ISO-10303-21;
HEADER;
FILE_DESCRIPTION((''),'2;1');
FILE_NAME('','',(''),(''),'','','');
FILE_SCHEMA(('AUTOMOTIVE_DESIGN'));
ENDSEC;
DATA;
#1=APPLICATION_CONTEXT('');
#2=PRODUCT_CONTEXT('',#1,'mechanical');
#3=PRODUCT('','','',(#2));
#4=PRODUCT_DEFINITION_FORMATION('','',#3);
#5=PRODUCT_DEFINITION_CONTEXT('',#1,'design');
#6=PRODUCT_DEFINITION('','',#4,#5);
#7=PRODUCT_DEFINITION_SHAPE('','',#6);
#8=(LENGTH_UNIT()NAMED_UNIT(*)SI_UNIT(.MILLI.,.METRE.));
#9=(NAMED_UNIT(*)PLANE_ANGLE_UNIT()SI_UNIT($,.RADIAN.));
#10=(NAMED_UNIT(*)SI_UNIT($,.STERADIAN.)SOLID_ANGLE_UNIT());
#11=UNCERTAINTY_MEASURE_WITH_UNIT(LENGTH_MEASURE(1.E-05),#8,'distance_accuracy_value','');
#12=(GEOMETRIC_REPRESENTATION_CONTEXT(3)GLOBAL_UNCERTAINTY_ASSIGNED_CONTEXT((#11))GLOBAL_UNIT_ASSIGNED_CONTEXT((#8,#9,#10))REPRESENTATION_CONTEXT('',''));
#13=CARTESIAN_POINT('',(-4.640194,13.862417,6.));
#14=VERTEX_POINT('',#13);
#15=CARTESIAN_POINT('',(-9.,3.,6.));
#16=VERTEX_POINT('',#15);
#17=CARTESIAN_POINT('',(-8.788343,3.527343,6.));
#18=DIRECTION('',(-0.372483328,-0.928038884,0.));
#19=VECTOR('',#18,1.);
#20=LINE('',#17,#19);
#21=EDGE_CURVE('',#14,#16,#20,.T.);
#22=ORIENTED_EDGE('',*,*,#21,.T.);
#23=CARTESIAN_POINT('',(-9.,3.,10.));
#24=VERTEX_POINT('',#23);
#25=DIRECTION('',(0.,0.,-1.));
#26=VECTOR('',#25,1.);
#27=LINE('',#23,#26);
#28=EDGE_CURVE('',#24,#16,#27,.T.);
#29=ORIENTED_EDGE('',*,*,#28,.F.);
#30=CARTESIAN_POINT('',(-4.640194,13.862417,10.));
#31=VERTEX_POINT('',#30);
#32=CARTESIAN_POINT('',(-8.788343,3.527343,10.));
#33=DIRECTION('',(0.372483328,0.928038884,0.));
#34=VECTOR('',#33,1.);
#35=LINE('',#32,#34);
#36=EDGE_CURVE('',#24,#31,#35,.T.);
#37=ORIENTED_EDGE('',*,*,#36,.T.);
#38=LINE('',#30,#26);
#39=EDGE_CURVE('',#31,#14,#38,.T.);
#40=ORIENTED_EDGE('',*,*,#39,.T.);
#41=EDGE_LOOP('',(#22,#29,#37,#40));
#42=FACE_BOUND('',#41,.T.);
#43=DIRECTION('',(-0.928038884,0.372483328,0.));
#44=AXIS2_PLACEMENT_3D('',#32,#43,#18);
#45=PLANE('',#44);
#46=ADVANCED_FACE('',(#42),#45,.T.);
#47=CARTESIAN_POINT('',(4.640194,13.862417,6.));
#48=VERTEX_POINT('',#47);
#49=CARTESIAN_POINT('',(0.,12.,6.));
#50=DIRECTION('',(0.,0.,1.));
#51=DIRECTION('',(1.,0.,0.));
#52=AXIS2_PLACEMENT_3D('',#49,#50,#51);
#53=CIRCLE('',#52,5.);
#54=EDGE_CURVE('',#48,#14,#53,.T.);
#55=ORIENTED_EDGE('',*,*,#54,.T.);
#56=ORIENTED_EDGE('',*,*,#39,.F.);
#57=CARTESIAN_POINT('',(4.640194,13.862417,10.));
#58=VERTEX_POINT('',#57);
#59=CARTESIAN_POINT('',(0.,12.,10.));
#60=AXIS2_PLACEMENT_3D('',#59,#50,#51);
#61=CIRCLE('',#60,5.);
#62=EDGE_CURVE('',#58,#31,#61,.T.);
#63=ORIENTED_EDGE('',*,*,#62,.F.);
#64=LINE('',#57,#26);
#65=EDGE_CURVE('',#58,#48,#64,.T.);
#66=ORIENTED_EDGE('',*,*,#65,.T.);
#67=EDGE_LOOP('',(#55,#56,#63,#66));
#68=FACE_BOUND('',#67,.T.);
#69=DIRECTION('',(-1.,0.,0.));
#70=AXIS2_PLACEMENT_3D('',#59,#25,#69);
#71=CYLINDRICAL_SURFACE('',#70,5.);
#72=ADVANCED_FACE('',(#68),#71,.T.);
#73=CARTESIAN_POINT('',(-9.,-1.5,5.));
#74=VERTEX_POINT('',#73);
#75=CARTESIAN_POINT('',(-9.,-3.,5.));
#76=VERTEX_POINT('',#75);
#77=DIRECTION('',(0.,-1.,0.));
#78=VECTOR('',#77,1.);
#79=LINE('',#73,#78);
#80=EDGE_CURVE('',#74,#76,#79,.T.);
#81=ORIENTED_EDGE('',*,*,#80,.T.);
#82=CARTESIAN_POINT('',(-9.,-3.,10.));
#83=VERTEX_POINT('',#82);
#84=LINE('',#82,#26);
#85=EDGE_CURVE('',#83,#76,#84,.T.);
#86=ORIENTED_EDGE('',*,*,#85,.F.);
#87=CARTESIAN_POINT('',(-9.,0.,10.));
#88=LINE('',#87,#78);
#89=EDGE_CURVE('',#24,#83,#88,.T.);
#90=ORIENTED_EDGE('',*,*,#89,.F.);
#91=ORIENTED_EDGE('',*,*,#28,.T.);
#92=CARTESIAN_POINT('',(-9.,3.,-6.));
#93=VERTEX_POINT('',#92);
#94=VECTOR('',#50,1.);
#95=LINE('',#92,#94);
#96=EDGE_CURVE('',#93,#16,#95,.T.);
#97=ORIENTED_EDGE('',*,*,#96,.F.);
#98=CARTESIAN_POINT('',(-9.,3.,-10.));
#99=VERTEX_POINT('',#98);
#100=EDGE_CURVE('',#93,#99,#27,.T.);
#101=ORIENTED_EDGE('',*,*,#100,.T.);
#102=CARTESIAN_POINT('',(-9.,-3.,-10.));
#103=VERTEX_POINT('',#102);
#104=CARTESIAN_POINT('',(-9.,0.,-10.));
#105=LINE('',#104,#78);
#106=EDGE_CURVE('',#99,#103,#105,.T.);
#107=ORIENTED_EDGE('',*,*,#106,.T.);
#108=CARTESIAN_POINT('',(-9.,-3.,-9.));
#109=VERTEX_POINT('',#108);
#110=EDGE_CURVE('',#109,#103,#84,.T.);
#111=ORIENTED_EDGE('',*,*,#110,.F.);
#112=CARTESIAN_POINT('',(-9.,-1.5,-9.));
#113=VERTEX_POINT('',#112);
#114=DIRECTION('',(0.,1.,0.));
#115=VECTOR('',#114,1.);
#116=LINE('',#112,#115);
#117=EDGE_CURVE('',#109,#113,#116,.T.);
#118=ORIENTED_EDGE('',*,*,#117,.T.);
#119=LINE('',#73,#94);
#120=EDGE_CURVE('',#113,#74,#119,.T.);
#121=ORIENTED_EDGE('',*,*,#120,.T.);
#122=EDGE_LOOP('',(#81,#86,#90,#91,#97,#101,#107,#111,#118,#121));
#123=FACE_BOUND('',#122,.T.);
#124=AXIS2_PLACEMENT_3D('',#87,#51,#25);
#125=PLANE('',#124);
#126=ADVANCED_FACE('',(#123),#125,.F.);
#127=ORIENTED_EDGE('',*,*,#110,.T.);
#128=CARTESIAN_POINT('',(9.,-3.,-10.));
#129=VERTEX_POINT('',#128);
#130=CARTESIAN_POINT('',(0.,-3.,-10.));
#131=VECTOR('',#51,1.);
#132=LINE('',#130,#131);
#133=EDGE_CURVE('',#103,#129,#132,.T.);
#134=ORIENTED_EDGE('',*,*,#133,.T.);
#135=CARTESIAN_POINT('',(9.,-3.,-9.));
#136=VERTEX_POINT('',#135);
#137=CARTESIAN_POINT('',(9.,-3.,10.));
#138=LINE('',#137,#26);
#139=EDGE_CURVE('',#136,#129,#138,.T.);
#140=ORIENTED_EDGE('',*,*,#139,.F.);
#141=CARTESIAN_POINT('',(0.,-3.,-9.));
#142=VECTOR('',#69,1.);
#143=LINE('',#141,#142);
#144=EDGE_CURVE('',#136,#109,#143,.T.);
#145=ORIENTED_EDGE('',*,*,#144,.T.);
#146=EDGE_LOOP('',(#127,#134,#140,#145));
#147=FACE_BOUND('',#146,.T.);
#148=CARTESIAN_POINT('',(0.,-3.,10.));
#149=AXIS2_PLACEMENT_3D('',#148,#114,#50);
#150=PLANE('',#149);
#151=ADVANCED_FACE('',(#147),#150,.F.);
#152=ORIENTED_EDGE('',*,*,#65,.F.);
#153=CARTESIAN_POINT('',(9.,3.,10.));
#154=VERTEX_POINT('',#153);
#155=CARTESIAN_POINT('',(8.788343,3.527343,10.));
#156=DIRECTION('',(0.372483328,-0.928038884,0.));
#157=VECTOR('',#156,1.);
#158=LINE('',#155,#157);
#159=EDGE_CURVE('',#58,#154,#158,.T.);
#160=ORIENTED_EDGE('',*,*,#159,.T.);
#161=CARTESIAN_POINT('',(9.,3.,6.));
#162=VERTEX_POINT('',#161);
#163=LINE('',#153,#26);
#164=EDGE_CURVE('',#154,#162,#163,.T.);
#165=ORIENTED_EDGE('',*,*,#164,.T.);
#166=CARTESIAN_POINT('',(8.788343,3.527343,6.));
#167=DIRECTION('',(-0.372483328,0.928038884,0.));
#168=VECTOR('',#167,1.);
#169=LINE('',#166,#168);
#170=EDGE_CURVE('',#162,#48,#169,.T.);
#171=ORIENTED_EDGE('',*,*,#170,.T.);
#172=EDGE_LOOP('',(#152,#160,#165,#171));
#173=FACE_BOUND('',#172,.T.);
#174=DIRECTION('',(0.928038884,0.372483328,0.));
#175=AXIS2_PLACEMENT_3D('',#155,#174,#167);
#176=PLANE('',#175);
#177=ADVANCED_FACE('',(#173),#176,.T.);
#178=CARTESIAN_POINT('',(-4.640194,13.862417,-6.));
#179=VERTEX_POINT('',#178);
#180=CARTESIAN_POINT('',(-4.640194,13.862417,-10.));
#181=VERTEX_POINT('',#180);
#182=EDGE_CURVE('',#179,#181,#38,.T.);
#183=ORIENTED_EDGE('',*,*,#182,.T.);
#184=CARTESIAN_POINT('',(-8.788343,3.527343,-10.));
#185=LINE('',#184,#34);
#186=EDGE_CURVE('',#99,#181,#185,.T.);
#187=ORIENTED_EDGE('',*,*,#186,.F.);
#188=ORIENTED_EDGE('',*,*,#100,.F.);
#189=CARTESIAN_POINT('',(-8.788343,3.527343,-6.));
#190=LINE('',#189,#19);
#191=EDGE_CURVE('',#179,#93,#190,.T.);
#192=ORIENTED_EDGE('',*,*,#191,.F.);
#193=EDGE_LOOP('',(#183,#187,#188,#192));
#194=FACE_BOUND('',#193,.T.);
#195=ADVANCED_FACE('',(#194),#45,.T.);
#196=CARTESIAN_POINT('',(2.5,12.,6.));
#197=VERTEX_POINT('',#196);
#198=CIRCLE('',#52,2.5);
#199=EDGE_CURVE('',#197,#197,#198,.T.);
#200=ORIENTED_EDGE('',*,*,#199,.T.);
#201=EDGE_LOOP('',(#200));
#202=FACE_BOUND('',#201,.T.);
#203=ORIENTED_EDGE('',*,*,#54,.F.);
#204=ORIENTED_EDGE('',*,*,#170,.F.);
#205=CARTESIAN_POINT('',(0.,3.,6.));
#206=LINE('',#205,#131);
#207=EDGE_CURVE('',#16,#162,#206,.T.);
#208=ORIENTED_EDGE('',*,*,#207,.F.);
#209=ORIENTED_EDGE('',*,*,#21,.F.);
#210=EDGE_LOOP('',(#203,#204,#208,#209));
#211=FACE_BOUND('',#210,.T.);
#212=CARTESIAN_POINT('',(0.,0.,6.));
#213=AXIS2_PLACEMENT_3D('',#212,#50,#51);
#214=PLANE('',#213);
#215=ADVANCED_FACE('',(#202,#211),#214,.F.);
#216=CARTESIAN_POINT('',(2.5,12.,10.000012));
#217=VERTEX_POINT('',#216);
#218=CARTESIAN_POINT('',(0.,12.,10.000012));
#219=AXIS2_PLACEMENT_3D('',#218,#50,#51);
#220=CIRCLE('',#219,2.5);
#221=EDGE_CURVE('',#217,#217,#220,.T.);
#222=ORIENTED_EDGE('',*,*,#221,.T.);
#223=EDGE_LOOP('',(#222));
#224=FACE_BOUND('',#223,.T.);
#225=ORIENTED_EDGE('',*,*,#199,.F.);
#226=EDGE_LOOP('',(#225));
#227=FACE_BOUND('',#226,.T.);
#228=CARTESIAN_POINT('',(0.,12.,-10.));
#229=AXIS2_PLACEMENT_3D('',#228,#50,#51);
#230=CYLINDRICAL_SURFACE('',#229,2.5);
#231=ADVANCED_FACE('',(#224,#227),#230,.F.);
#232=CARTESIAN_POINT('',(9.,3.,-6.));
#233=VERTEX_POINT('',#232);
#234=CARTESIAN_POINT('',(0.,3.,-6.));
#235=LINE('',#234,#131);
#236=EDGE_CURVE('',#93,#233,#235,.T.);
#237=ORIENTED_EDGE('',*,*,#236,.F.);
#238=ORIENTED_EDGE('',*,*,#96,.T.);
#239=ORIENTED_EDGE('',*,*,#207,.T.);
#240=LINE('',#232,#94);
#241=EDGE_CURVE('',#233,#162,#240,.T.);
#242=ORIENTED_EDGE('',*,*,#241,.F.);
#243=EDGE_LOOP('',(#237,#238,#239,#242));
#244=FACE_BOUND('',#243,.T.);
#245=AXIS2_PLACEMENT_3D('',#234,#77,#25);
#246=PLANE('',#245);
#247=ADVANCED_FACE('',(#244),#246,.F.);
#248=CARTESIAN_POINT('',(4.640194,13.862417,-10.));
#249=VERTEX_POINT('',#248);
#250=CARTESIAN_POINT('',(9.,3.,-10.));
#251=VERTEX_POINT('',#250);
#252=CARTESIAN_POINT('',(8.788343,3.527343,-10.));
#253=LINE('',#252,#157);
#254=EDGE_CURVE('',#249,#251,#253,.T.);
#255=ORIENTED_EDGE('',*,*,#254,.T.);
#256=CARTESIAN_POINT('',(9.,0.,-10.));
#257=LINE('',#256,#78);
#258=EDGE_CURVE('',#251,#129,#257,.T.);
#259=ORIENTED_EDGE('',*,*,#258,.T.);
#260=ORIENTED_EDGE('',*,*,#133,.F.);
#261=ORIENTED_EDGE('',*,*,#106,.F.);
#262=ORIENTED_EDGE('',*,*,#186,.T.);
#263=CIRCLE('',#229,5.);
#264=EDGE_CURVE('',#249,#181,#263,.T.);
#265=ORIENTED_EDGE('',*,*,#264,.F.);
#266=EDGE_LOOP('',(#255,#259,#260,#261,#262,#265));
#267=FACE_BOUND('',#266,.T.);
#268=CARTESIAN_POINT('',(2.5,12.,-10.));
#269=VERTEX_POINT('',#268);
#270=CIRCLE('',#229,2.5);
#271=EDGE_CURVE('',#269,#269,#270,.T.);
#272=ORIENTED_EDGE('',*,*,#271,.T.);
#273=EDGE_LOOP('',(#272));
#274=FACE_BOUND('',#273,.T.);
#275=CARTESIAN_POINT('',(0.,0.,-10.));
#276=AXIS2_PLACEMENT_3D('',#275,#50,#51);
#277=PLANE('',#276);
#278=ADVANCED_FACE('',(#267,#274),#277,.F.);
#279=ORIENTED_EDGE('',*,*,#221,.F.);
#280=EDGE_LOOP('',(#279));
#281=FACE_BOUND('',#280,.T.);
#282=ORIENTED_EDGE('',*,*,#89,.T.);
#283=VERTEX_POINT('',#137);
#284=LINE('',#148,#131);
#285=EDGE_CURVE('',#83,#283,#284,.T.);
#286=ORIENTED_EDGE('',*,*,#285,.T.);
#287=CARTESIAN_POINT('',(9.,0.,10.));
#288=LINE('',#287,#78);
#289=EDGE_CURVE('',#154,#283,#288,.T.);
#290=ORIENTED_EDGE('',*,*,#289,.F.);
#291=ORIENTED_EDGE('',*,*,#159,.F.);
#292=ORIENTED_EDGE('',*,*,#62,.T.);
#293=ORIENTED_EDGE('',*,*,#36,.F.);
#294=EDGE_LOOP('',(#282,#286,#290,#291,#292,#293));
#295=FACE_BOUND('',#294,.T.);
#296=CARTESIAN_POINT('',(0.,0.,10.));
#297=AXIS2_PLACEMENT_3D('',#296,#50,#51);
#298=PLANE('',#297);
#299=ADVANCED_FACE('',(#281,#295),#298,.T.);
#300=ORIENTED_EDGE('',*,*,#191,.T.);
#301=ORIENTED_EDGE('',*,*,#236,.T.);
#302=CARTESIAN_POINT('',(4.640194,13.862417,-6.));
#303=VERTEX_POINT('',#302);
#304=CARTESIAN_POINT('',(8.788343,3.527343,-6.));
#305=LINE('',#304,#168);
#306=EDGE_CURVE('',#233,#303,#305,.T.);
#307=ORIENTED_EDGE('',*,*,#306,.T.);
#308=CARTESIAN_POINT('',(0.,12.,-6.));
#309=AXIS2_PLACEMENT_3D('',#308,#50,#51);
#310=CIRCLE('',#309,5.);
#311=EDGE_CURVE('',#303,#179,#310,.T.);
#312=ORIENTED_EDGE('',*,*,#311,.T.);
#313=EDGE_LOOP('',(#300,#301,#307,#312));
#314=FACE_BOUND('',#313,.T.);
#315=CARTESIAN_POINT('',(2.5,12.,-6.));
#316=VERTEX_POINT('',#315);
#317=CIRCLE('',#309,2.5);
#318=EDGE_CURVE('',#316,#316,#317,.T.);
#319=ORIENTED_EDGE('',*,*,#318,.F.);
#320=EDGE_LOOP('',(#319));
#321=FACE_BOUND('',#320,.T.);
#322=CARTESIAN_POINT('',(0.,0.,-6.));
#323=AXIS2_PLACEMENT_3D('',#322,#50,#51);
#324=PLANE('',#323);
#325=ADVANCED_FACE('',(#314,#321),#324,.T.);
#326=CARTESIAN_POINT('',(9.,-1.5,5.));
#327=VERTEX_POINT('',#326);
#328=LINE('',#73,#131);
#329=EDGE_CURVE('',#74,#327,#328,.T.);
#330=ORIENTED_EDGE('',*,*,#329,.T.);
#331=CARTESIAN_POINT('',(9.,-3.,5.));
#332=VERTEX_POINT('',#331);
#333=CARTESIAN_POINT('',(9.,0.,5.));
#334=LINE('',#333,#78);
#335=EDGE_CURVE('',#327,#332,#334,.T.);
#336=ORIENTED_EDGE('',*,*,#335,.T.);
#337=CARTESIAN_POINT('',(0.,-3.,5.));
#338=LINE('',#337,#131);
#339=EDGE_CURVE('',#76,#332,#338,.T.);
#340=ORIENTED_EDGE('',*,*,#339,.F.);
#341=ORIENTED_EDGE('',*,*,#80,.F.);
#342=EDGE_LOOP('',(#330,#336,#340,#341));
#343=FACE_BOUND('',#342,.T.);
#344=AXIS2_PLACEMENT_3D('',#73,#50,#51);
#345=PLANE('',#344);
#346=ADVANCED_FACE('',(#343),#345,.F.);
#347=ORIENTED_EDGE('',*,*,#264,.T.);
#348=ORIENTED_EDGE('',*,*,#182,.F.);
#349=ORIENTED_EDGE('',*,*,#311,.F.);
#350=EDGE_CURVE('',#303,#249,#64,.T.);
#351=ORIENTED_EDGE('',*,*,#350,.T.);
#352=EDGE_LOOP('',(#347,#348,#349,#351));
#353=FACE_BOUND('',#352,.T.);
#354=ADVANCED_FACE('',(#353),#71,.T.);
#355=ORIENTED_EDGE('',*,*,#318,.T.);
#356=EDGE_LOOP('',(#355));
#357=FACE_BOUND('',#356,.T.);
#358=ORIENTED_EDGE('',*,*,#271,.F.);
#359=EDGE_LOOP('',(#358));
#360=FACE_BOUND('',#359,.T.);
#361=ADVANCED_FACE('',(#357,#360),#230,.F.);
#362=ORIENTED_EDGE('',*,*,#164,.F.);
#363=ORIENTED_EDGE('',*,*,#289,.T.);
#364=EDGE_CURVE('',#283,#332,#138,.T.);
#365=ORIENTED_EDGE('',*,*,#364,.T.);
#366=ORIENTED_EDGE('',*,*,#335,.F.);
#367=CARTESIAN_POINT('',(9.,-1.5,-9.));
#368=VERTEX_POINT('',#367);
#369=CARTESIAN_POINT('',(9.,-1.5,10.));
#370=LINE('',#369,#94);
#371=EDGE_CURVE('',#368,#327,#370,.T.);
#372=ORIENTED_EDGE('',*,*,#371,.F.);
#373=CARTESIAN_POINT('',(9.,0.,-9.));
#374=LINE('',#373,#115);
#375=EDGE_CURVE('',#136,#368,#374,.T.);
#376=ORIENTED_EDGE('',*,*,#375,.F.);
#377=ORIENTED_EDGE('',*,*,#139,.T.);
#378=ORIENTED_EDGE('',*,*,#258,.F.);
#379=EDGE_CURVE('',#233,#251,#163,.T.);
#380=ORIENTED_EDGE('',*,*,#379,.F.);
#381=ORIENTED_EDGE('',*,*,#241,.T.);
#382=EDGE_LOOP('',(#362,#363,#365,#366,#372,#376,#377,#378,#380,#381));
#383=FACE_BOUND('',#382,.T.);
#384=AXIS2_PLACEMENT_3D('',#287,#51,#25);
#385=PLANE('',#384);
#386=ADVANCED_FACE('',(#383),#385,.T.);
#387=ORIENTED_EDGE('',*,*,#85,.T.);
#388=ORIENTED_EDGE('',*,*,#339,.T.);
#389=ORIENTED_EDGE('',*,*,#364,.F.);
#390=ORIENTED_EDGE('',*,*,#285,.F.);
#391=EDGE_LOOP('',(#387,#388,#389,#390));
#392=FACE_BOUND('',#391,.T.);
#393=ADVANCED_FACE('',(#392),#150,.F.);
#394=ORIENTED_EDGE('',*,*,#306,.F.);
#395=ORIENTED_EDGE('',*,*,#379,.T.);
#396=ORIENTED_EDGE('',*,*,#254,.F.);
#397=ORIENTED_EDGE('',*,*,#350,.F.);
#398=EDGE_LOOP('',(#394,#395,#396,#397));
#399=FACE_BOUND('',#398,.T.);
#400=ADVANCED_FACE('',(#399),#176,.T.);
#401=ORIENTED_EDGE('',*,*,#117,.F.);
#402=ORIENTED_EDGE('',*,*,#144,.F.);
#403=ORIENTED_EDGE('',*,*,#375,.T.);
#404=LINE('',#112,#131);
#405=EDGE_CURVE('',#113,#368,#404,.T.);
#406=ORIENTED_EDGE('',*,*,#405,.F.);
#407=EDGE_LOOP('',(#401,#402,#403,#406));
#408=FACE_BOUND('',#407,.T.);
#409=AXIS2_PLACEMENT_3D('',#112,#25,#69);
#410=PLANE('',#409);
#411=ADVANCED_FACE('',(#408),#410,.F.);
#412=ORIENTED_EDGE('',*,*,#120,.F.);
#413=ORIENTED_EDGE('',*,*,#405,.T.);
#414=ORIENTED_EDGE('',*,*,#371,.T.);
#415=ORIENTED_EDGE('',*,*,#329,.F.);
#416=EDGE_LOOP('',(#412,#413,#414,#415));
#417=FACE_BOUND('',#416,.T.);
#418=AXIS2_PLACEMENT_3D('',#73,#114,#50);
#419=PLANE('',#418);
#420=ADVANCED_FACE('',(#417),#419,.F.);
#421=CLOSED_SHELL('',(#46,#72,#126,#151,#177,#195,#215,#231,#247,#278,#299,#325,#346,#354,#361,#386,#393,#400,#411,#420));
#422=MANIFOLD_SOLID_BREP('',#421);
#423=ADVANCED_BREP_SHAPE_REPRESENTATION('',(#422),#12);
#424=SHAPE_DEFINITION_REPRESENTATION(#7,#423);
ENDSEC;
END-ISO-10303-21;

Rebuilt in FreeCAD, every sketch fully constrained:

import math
import FreeCAD as App
import Part
import Sketcher
Q = App.Units.Quantity


def add_polygon(sketch, points):
    """Adds a closed chain of lines whose ends are joined by coincident constraints."""
    first, n = sketch.GeometryCount, len(points)
    for a, b in zip(points, points[1:] + points[:1]):
        sketch.addGeometry(Part.LineSegment(App.Vector(*a, 0), App.Vector(*b, 0)), False)
    for i in range(n):
        sketch.addConstraint(Sketcher.Constraint("Coincident", first + i, 2, first + (i + 1) % n, 1))

doc = App.newDocument("Part")
body = doc.addObject("PartDesign::Body", "Body")

sketch1 = body.newObject("Sketcher::SketchObject", "Sketch")
sketch1.AttachmentSupport = (doc.getObject("XY_Plane"), [""])
sketch1.MapMode = "FlatFace"
sketch1.addGeometry([
    Part.ArcOfCircle(Part.Circle(App.Vector(0, 12, 0), App.Vector(0, 0, 1), 5), math.radians(22), math.radians(158)),
    Part.LineSegment(App.Vector(-5, 14, 0), App.Vector(-9, 3, 0)),
    Part.LineSegment(App.Vector(-9, 3, 0), App.Vector(-9, -3, 0)),
    Part.LineSegment(App.Vector(-9, -3, 0), App.Vector(9, -3, 0)),
    Part.LineSegment(App.Vector(9, -3, 0), App.Vector(9, 3, 0)),
    Part.LineSegment(App.Vector(9, 3, 0), App.Vector(5, 14, 0)),
], False)
sketch1.addConstraint([
    Sketcher.Constraint("Tangent", 0, 2, 1, 1),
    Sketcher.Constraint("Coincident", 1, 2, 2, 1),
    Sketcher.Constraint("Coincident", 2, 2, 3, 1),
    Sketcher.Constraint("Coincident", 3, 2, 4, 1),
    Sketcher.Constraint("Coincident", 4, 2, 5, 1),
    Sketcher.Constraint("Tangent", 5, 2, 0, 1),
    Sketcher.Constraint("Vertical", 2),
    Sketcher.Constraint("Horizontal", 3),
    Sketcher.Constraint("Vertical", 4),
    Sketcher.Constraint("Symmetric", 1, 2, 3, 2, -1, 1),
    Sketcher.Constraint("Symmetric", 0, 2, 5, 2, -2),
    Sketcher.Constraint("Radius", 0, Q("5 mm")),
    Sketcher.Constraint("DistanceX", 3, 1, 3, 2, Q("18 mm")),
    Sketcher.Constraint("DistanceY", 2, 2, 2, 1, Q("6 mm")),
    Sketcher.Constraint("DistanceY", -1, 1, 0, 3, Q("12 mm")),
])
pad1 = body.newObject("PartDesign::Pad", "Pad")
pad1.Profile = sketch1
pad1.Length = 20
pad1.Midplane = True

sketch2 = body.newObject("Sketcher::SketchObject", "Sketch001")
sketch2.AttachmentSupport = (doc.getObject("YZ_Plane"), [""])
sketch2.MapMode = "FlatFace"
sketch2.AttachmentOffset = App.Placement(App.Vector(0, 0, 9), App.Rotation())
add_polygon(sketch2, [(-1.5, 5), (-4.5, 5), (-4.5, -9), (-1.5, -9)])
sketch2.addConstraint([
    Sketcher.Constraint("Horizontal", 0),
    Sketcher.Constraint("Vertical", 1),
    Sketcher.Constraint("Horizontal", 2),
    Sketcher.Constraint("Vertical", 3),
    Sketcher.Constraint("DistanceX", 0, 2, 0, 1, Q("3 mm")),
    Sketcher.Constraint("DistanceY", 1, 2, 1, 1, Q("14 mm")),
    Sketcher.Constraint("DistanceY", -1, 1, 0, 2, Q("5 mm")),
    Sketcher.Constraint("DistanceX", 0, 2, -1, 1, Q("4.5 mm")),
])
pocket1 = body.newObject("PartDesign::Pocket", "Pocket")
pocket1.Profile = sketch2
pocket1.Type = "ThroughAll"
pocket1.Midplane = True

sketch3 = body.newObject("Sketcher::SketchObject", "Sketch002")
sketch3.AttachmentSupport = (doc.getObject("XY_Plane"), [""])
sketch3.MapMode = "FlatFace"
sketch3.AttachmentOffset = App.Placement(App.Vector(0, 0, 6), App.Rotation())
sketch3.addGeometry([
    Part.LineSegment(App.Vector(-9, 3, 0), App.Vector(9, 3, 0)),
    Part.LineSegment(App.Vector(9, 3, 0), App.Vector(5, 14, 0)),
    Part.ArcOfCircle(Part.Circle(App.Vector(0, 12, 0), App.Vector(0, 0, 1), 5), math.radians(22), math.radians(158)),
    Part.LineSegment(App.Vector(-5, 14, 0), App.Vector(-9, 3, 0)),
], False)
sketch3.addConstraint([
    Sketcher.Constraint("Coincident", 0, 2, 1, 1),
    Sketcher.Constraint("Tangent", 1, 2, 2, 1),
    Sketcher.Constraint("Tangent", 2, 2, 3, 1),
    Sketcher.Constraint("Coincident", 3, 2, 0, 1),
    Sketcher.Constraint("Horizontal", 0),
    Sketcher.Constraint("Symmetric", 1, 2, 2, 2, -2),
    Sketcher.Constraint("Radius", 2, Q("5 mm")),
    Sketcher.Constraint("DistanceX", 0, 1, 0, 2, Q("18 mm")),
    Sketcher.Constraint("DistanceY", -1, 1, 2, 3, Q("12 mm")),
    Sketcher.Constraint("DistanceY", -1, 1, 0, 2, Q("3 mm")),
])
pocket2 = body.newObject("PartDesign::Pocket", "Pocket001")
pocket2.Profile = sketch3
pocket2.Length = 12

sketch4 = body.newObject("Sketcher::SketchObject", "Sketch003")
sketch4.AttachmentSupport = (doc.getObject("XY_Plane"), [""])
sketch4.MapMode = "FlatFace"
sketch4.AttachmentOffset = App.Placement(App.Vector(0, 0, 10), App.Rotation())
sketch4.addGeometry(Part.Circle(App.Vector(0, 12, 0), App.Vector(0, 0, 1), 2.5), False)
sketch4.addConstraint([
    Sketcher.Constraint("PointOnObject", 0, 3, -2),
    Sketcher.Constraint("Diameter", 0, Q("5 mm")),
    Sketcher.Constraint("DistanceY", -1, 1, 0, 3, Q("12 mm")),
])
pocket3 = body.newObject("PartDesign::Pocket", "Pocket002")
pocket3.Profile = sketch4
pocket3.Type = "ThroughAll"
pocket3.Midplane = True

doc.recompute()
